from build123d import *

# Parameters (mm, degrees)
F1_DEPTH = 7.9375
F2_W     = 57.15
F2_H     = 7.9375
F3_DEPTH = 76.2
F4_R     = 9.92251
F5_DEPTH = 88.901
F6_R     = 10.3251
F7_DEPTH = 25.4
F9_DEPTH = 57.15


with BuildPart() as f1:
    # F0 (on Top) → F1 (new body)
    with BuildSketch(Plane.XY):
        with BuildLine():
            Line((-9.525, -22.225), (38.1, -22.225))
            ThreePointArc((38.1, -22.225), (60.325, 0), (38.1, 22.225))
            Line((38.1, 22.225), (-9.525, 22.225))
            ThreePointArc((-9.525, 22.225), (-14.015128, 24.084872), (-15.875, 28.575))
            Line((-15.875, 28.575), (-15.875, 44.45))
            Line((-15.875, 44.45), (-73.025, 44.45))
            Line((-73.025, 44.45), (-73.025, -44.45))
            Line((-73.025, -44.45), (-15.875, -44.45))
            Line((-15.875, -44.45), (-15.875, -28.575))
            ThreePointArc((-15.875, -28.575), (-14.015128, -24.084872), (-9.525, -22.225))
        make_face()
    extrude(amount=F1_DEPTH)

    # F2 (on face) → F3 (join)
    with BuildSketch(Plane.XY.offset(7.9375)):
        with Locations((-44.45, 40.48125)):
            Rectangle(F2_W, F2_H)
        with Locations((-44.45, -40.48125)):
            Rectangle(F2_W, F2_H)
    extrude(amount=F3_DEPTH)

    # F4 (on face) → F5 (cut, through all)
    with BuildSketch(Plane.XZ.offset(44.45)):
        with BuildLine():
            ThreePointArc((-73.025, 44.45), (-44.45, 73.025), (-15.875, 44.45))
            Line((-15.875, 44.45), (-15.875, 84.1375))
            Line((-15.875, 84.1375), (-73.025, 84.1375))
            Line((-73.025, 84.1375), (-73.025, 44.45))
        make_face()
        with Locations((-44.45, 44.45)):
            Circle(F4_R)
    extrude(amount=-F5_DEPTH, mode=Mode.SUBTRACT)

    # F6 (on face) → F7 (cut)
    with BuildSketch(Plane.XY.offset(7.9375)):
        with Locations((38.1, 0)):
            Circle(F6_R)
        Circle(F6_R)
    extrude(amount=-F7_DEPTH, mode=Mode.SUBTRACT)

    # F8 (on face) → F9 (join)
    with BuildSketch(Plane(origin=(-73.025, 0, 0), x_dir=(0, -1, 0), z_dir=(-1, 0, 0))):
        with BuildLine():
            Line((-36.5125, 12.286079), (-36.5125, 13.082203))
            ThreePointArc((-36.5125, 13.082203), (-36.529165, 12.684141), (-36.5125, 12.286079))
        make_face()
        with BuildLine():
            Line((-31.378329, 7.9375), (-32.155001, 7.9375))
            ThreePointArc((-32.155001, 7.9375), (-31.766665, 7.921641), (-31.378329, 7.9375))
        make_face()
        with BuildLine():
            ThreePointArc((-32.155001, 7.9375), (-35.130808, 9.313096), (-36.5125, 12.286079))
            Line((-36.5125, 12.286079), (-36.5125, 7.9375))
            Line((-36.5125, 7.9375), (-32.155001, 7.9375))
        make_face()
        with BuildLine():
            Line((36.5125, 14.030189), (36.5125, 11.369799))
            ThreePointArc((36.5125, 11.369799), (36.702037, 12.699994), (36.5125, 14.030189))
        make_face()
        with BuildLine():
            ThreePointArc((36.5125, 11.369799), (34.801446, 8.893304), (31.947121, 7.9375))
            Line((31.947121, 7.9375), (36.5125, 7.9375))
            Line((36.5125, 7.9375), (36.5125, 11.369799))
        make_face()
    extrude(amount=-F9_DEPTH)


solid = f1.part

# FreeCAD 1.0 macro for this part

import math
import FreeCAD as App
import Part
import Sketcher
from FreeCAD import Vector
Q = App.Units.Quantity

doc = App.newDocument("Part")
body = doc.addObject("PartDesign::Body", "Body")

sketch1 = body.newObject("Sketcher::SketchObject", "Sketch")
sketch1.AttachmentSupport = (doc.getObject("XY_Plane"), [""])
sketch1.MapMode = "FlatFace"
sketch1.addGeometry(Part.LineSegment(Vector(-9.525, -22.225, 0), Vector(38.1, -22.225, 0)), False)
sketch1.addGeometry(Part.ArcOfCircle(Part.Circle(Vector(38.1, 0, 0), Vector(0, 0, 1), 22.225), math.radians(-90), math.radians(90)), False)
sketch1.addGeometry(Part.LineSegment(Vector(38.1, 22.225, 0), Vector(-9.525, 22.225, 0)), False)
sketch1.addGeometry(Part.ArcOfCircle(Part.Circle(Vector(-9.525, 28.575, 0), Vector(0, 0, 1), 6.35), math.radians(-179.999998), math.radians(-90.000002)), False)
sketch1.addGeometry(Part.LineSegment(Vector(-15.875, 28.575, 0), Vector(-15.875, 44.45, 0)), False)
sketch1.addGeometry(Part.LineSegment(Vector(-15.875, 44.45, 0), Vector(-73.025, 44.45, 0)), False)
sketch1.addGeometry(Part.LineSegment(Vector(-73.025, 44.45, 0), Vector(-73.025, -44.45, 0)), False)
sketch1.addGeometry(Part.LineSegment(Vector(-73.025, -44.45, 0), Vector(-15.875, -44.45, 0)), False)
sketch1.addGeometry(Part.LineSegment(Vector(-15.875, -44.45, 0), Vector(-15.875, -28.575, 0)), False)
sketch1.addGeometry(Part.ArcOfCircle(Part.Circle(Vector(-9.525, -28.575, 0), Vector(0, 0, 1), 6.35), math.radians(90.000002), math.radians(179.999998)), False)
sketch1.addConstraint(Sketcher.Constraint("Tangent", 0, 2, 1, 1))
sketch1.addConstraint(Sketcher.Constraint("Tangent", 1, 2, 2, 1))
sketch1.addConstraint(Sketcher.Constraint("Tangent", 2, 2, 3, 2))
sketch1.addConstraint(Sketcher.Constraint("Tangent", 3, 1, 4, 1))
sketch1.addConstraint(Sketcher.Constraint("Coincident", 4, 2, 5, 1))
sketch1.addConstraint(Sketcher.Constraint("Coincident", 5, 2, 6, 1))
sketch1.addConstraint(Sketcher.Constraint("Coincident", 6, 2, 7, 1))
sketch1.addConstraint(Sketcher.Constraint("Coincident", 7, 2, 8, 1))
sketch1.addConstraint(Sketcher.Constraint("Tangent", 8, 2, 9, 2))
sketch1.addConstraint(Sketcher.Constraint("Tangent", 9, 1, 0, 1))
sketch1.addConstraint(Sketcher.Constraint("Horizontal", 0))
sketch1.addConstraint(Sketcher.Constraint("Horizontal", 2))
sketch1.addConstraint(Sketcher.Constraint("Vertical", 4))
sketch1.addConstraint(Sketcher.Constraint("Horizontal", 5))
sketch1.addConstraint(Sketcher.Constraint("Vertical", 6))
sketch1.addConstraint(Sketcher.Constraint("Horizontal", 7))
sketch1.addConstraint(Sketcher.Constraint("Vertical", 8))
sketch1.addConstraint(Sketcher.Constraint("Equal", 3, 9))
sketch1.addConstraint(Sketcher.Constraint("Symmetric", 3, 3, 9, 3, -1))
sketch1.addConstraint(Sketcher.Constraint("Equal", 4, 8))
sketch1.addConstraint(Sketcher.Constraint("Radius", 3, Q("0.25 in")))
sketch1.addConstraint(Sketcher.Constraint("DistanceY", 6, 2, 6, 1, Q("3.5 in")))
sketch1.addConstraint(Sketcher.Constraint("Radius", 1, Q("0.875 in")))
sketch1.addConstraint(Sketcher.Constraint("DistanceX", 5, 2, 5, 1, Q("2.25 in")))
sketch1.addConstraint(Sketcher.Constraint("DistanceX", -1, 1, 1, 3, Q("1.5 in")))
sketch1.addConstraint(Sketcher.Constraint("DistanceX", 0, 1, 0, 2, Q("1.875 in")))
pad1 = body.newObject("PartDesign::Pad", "Pad")
pad1.Profile = sketch1
pad1.Length = Q("0.3125 in")

sketch2 = body.newObject("Sketcher::SketchObject", "Sketch001")
sketch2.AttachmentSupport = (doc.getObject("XY_Plane"), [""])
sketch2.MapMode = "FlatFace"
sketch2.AttachmentOffset = App.Placement(Vector(0, 0, 0.3125 * 25.4), App.Rotation())
sketch2.addGeometry(Part.LineSegment(Vector(-73.025, 44.45, 0), Vector(-73.025, 36.5125, 0)), False)
sketch2.addGeometry(Part.LineSegment(Vector(-73.025, 36.5125, 0), Vector(-15.875, 36.5125, 0)), False)
sketch2.addGeometry(Part.LineSegment(Vector(-15.875, 36.5125, 0), Vector(-15.875, 44.45, 0)), False)
sketch2.addGeometry(Part.LineSegment(Vector(-15.875, 44.45, 0), Vector(-73.025, 44.45, 0)), False)
sketch2.addGeometry(Part.LineSegment(Vector(-73.025, -36.5125, 0), Vector(-73.025, -44.45, 0)), False)
sketch2.addGeometry(Part.LineSegment(Vector(-73.025, -44.45, 0), Vector(-15.875, -44.45, 0)), False)
sketch2.addGeometry(Part.LineSegment(Vector(-15.875, -44.45, 0), Vector(-15.875, -36.5125, 0)), False)
sketch2.addGeometry(Part.LineSegment(Vector(-15.875, -36.5125, 0), Vector(-73.025, -36.5125, 0)), False)
sketch2.addConstraint(Sketcher.Constraint("Coincident", 0, 2, 1, 1))
sketch2.addConstraint(Sketcher.Constraint("Coincident", 1, 2, 2, 1))
sketch2.addConstraint(Sketcher.Constraint("Coincident", 2, 2, 3, 1))
sketch2.addConstraint(Sketcher.Constraint("Coincident", 3, 2, 0, 1))
sketch2.addConstraint(Sketcher.Constraint("Coincident", 4, 2, 5, 1))
sketch2.addConstraint(Sketcher.Constraint("Coincident", 5, 2, 6, 1))
sketch2.addConstraint(Sketcher.Constraint("Coincident", 6, 2, 7, 1))
sketch2.addConstraint(Sketcher.Constraint("Coincident", 7, 2, 4, 1))
sketch2.addConstraint(Sketcher.Constraint("Vertical", 0))
sketch2.addConstraint(Sketcher.Constraint("Horizontal", 1))
sketch2.addConstraint(Sketcher.Constraint("Vertical", 2))
sketch2.addConstraint(Sketcher.Constraint("Horizontal", 3))
sketch2.addConstraint(Sketcher.Constraint("Vertical", 4))
sketch2.addConstraint(Sketcher.Constraint("Horizontal", 5))
sketch2.addConstraint(Sketcher.Constraint("Vertical", 6))
sketch2.addConstraint(Sketcher.Constraint("Horizontal", 7))
sketch2.addConstraint(Sketcher.Constraint("Symmetric", 3, 2, 4, 2, -1))
sketch2.addConstraint(Sketcher.Constraint("Symmetric", 1, 2, 6, 2, -1))
sketch2.addConstraint(Sketcher.Constraint("DistanceX", 1, 1, 1, 2, Q("2.25 in")))
sketch2.addConstraint(Sketcher.Constraint("DistanceY", 4, 2, 3, 2, Q("3.5 in")))
sketch2.addConstraint(Sketcher.Constraint("DistanceY", 0, 2, 0, 1, Q("0.3125 in")))
sketch2.addConstraint(Sketcher.Constraint("DistanceX", 0, 2, -1, 1, Q("2.875 in")))
pad2 = body.newObject("PartDesign::Pad", "Pad001")
pad2.Profile = sketch2
pad2.Length = Q("3 in")

sketch3 = body.newObject("Sketcher::SketchObject", "Sketch002")
sketch3.AttachmentSupport = (doc.getObject("XZ_Plane"), [""])
sketch3.MapMode = "FlatFace"
sketch3.AttachmentOffset = App.Placement(Vector(0, 0, 1.75 * 25.4), App.Rotation())
sketch3.addGeometry(Part.ArcOfCircle(Part.Circle(Vector(-44.45, 44.45, 0), Vector(0, 0, 1), 28.575), math.radians(0), math.radians(180)), False)
sketch3.addGeometry(Part.LineSegment(Vector(-15.875, 44.45, 0), Vector(-15.875, 84.1375, 0)), False)
sketch3.addGeometry(Part.LineSegment(Vector(-15.875, 84.1375, 0), Vector(-73.025, 84.1375, 0)), False)
sketch3.addGeometry(Part.LineSegment(Vector(-73.025, 84.1375, 0), Vector(-73.025, 44.45, 0)), False)
sketch3.addGeometry(Part.Circle(Vector(-44.45, 44.45, 0), Vector(0, 0, 1), 9.92251), False)
sketch3.addConstraint(Sketcher.Constraint("Tangent", 0, 1, 1, 1))
sketch3.addConstraint(Sketcher.Constraint("Coincident", 1, 2, 2, 1))
sketch3.addConstraint(Sketcher.Constraint("Coincident", 2, 2, 3, 1))
sketch3.addConstraint(Sketcher.Constraint("Tangent", 3, 2, 0, 2))
sketch3.addConstraint(Sketcher.Constraint("Vertical", 1))
sketch3.addConstraint(Sketcher.Constraint("Horizontal", 2))
sketch3.addConstraint(Sketcher.Constraint("Vertical", 3))
sketch3.addConstraint(Sketcher.Constraint("Coincident", 4, 3, 0, 3))
sketch3.addConstraint(Sketcher.Constraint("Radius", 0, Q("1.125 in")))
sketch3.addConstraint(Sketcher.Constraint("Diameter", 4, Q("0.7813 in")))
sketch3.addConstraint(Sketcher.Constraint("DistanceY", 1, 1, 1, 2, Q("1.5625 in")))
sketch3.addConstraint(Sketcher.Constraint("DistanceX", 0, 3, -1, 1, Q("1.75 in")))
sketch3.addConstraint(Sketcher.Constraint("DistanceY", -1, 1, 0, 3, Q("1.75 in")))
pocket1 = body.newObject("PartDesign::Pocket", "Pocket")
pocket1.Profile = sketch3
pocket1.Type = "ThroughAll"

sketch4 = body.newObject("Sketcher::SketchObject", "Sketch003")
sketch4.AttachmentSupport = (doc.getObject("XY_Plane"), [""])
sketch4.MapMode = "FlatFace"
sketch4.AttachmentOffset = App.Placement(Vector(0, 0, 0.3125 * 25.4), App.Rotation())
sketch4.addGeometry(Part.Circle(Vector(38.1, 0, 0), Vector(0, 0, 1), 10.3251), False)
sketch4.addGeometry(Part.Circle(Vector(0, 0, 0), Vector(0, 0, 1), 10.3251), False)
sketch4.addConstraint(Sketcher.Constraint("Coincident", 1, 3, -1, 1))
sketch4.addConstraint(Sketcher.Constraint("Equal", 0, 1))
sketch4.addConstraint(Sketcher.Constraint("PointOnObject", 0, 3, -1))
sketch4.addConstraint(Sketcher.Constraint("Diameter", 0, Q("0.813 in")))
sketch4.addConstraint(Sketcher.Constraint("DistanceX", -1, 1, 0, 3, Q("1.5 in")))
pocket2 = body.newObject("PartDesign::Pocket", "Pocket001")
pocket2.Profile = sketch4
pocket2.Length = Q("1 in")

sketch5 = body.newObject("Sketcher::SketchObject", "Sketch004")
sketch5.AttachmentSupport = (doc.getObject("YZ_Plane"), [""])
sketch5.MapMode = "FlatFace"
sketch5.AttachmentOffset = App.Placement(Vector(0, 0, -2.875 * 25.4), App.Rotation())
sketch5.addGeometry(Part.LineSegment(Vector(36.5125, 12.286079, 0), Vector(36.5125, 13.082203, 0)), False)
sketch5.addGeometry(Part.ArcOfCircle(Part.Circle(Vector(31.766756, 12.684141, 0), Vector(0, 0, 1), 4.762409), math.radians(-4.794614), math.radians(4.794614)), False)
sketch5.addGeometry(Part.LineSegment(Vector(31.378329, 7.9375, 0), Vector(32.155001, 7.9375, 0)), False)
sketch5.addGeometry(Part.ArcOfCircle(Part.Circle(Vector(31.766665, 12.684122, 0), Vector(0, 0, 1), 4.762481), math.radians(-94.677131), math.radians(-85.322869)), False)
sketch5.addGeometry(Part.ArcOfCircle(Part.Circle(Vector(31.766664, 12.684141, 0), Vector(0, 0, 1), 4.7625), math.radians(-85.32288), math.radians(-4.794527)), False)
sketch5.addGeometry(Part.LineSegment(Vector(36.5125, 12.286079, 0), Vector(36.5125, 7.9375, 0)), False)
sketch5.addGeometry(Part.LineSegment(Vector(36.5125, 7.9375, 0), Vector(32.155001, 7.9375, 0)), False)
sketch5.addGeometry(Part.LineSegment(Vector(-36.5125, 14.030189, 0), Vector(-36.5125, 11.369799, 0)), False)
sketch5.addGeometry(Part.ArcOfCircle(Part.Circle(Vector(-31.939529, 12.699994, 0), Vector(0, 0, 1), 4.762508), math.radians(163.781237), math.radians(196.218763)), False)
sketch5.addGeometry(Part.ArcOfCircle(Part.Circle(Vector(-31.939538, 12.699993, 0), Vector(0, 0, 1), 4.762499), math.radians(-163.781222), math.radians(-90.091223)), False)
sketch5.addGeometry(Part.LineSegment(Vector(-31.947121, 7.9375, 0), Vector(-36.5125, 7.9375, 0)), False)
sketch5.addGeometry(Part.LineSegment(Vector(-36.5125, 7.9375, 0), Vector(-36.5125, 11.369799, 0)), False)
sketch5.addConstraint(Sketcher.Constraint("Coincident", 0, 1, 1, 1))
sketch5.addConstraint(Sketcher.Constraint("Coincident", 1, 2, 0, 2))
sketch5.addConstraint(Sketcher.Constraint("Coincident", 2, 1, 3, 1))
sketch5.addConstraint(Sketcher.Constraint("Coincident", 3, 2, 2, 2))
sketch5.addConstraint(Sketcher.Constraint("Coincident", 4, 2, 5, 1))
sketch5.addConstraint(Sketcher.Constraint("Coincident", 5, 2, 6, 1))
sketch5.addConstraint(Sketcher.Constraint("Coincident", 6, 2, 4, 1))
sketch5.addConstraint(Sketcher.Constraint("Coincident", 7, 1, 8, 1))
sketch5.addConstraint(Sketcher.Constraint("Coincident", 8, 2, 7, 2))
sketch5.addConstraint(Sketcher.Constraint("Coincident", 9, 2, 10, 1))
sketch5.addConstraint(Sketcher.Constraint("Coincident", 10, 2, 11, 1))
sketch5.addConstraint(Sketcher.Constraint("Coincident", 11, 2, 9, 1))
sketch5.addConstraint(Sketcher.Constraint("Vertical", 0))
sketch5.addConstraint(Sketcher.Constraint("Horizontal", 2))
sketch5.addConstraint(Sketcher.Constraint("Vertical", 5))
sketch5.addConstraint(Sketcher.Constraint("Horizontal", 6))
sketch5.addConstraint(Sketcher.Constraint("Vertical", 7))
sketch5.addConstraint(Sketcher.Constraint("Horizontal", 10))
sketch5.addConstraint(Sketcher.Constraint("Vertical", 11))
sketch5.addConstraint(Sketcher.Constraint("Coincident", 9, 3, 8, 3))
sketch5.addConstraint(Sketcher.Constraint("Coincident", 4, 2, 0, 1))
sketch5.addConstraint(Sketcher.Constraint("Coincident", 6, 2, 3, 2))
sketch5.addConstraint(Sketcher.Constraint("Coincident", 11, 2, 8, 2))
sketch5.addConstraint(Sketcher.Constraint("Equal", 4, 9))
sketch5.addConstraint(Sketcher.Constraint("Symmetric", 5, 2, 10, 2, -2))
sketch5.addConstraint(Sketcher.Constraint("Horizontal", 1, 3, 4, 3))
sketch5.addConstraint(Sketcher.Constraint("Vertical", 3, 3, 4, 3))
sketch5.addConstraint(Sketcher.Constraint("Radius", 4, Q("0.1875 in")))
sketch5.addConstraint(Sketcher.Constraint("DistanceX", -1, 1, 0, 1, Q("1.4375 in")))
sketch5.addConstraint(Sketcher.Constraint("DistanceY", -1, 1, 2, 1, Q("0.3125 in")))
sketch5.addConstraint(Sketcher.Constraint("Radius", 1, Q("4.762409 mm")))
sketch5.addConstraint(Sketcher.Constraint("Radius", 3, Q("4.762481 mm")))
sketch5.addConstraint(Sketcher.Constraint("DistanceX", 6, 2, 6, 1, Q("4.357499 mm")))
sketch5.addConstraint(Sketcher.Constraint("DistanceY", 11, 1, 11, 2, Q("3.432299 mm")))
sketch5.addConstraint(Sketcher.Constraint("DistanceX", 2, 1, 2, 2, Q("0.776672 mm")))
sketch5.addConstraint(Sketcher.Constraint("DistanceX", 10, 2, 10, 1, Q("4.565379 mm")))
pad3 = body.newObject("PartDesign::Pad", "Pad002")
pad3.Profile = sketch5
pad3.Length = Q("2.25 in")

doc.recompute()
